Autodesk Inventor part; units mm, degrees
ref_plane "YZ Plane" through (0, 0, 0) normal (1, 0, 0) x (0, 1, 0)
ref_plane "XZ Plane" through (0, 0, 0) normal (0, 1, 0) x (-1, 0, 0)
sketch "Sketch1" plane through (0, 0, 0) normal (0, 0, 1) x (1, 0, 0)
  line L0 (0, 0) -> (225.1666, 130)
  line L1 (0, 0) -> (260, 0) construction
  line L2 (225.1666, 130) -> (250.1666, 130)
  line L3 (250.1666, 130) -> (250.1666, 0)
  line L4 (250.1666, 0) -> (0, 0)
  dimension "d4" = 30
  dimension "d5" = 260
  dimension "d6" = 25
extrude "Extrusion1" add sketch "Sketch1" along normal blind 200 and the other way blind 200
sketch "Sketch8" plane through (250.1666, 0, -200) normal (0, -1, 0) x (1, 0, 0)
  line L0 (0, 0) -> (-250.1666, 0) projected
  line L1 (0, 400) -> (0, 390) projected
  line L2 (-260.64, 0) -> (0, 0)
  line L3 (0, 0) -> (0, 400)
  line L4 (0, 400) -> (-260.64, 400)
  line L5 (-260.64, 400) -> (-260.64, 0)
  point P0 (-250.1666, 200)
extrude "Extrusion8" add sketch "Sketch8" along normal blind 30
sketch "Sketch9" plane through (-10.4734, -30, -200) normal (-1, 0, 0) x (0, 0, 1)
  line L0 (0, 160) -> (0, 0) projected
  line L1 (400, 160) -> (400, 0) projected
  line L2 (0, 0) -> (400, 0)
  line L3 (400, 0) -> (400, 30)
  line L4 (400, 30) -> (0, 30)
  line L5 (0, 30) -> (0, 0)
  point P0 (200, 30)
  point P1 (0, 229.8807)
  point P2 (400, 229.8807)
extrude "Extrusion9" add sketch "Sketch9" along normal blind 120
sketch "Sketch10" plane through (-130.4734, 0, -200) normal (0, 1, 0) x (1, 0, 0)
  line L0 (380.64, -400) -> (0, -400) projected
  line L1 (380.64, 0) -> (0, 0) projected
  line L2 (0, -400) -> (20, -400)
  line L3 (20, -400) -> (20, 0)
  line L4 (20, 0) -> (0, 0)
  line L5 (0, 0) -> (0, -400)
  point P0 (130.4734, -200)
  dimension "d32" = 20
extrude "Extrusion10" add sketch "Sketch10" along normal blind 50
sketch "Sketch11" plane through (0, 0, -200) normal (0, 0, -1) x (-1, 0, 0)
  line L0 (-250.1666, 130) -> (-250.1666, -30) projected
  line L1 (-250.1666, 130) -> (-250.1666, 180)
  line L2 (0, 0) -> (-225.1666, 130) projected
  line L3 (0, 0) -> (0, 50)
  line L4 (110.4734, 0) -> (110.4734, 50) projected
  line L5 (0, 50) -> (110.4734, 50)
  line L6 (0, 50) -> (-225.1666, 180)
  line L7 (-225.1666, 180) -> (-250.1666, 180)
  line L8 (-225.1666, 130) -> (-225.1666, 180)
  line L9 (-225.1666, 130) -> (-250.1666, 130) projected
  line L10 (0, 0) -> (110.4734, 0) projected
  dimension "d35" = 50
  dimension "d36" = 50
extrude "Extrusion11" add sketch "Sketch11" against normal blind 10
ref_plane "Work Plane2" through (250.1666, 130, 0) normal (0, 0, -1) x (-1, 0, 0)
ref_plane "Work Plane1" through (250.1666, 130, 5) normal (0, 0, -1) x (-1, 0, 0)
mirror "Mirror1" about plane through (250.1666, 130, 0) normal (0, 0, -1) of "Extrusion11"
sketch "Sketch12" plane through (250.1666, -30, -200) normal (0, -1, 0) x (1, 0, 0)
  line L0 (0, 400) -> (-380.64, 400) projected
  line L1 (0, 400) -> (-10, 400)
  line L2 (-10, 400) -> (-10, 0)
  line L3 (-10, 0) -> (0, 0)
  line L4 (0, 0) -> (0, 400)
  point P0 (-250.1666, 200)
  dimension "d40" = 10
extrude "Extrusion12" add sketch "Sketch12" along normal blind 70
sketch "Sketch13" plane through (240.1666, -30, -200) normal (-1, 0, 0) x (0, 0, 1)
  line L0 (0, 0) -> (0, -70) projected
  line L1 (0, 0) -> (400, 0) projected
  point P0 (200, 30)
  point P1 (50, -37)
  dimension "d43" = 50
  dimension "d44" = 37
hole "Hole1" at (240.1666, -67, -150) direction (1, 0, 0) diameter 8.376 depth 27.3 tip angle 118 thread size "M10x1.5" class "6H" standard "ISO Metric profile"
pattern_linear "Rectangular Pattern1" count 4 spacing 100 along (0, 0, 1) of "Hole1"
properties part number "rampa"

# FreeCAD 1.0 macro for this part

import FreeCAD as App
import Part
import Sketcher

V = App.Vector
Q = App.Units.Quantity

doc = App.newDocument("Part")
body = doc.addObject("PartDesign::Body", "Body")

sketch1 = body.newObject("Sketcher::SketchObject", "Sketch")
sketch1.AttachmentSupport = (doc.getObject("XY_Plane"), [""])
sketch1.MapMode = "FlatFace"
sketch1.addGeometry([
    Part.LineSegment(V(225.1666, 130, 0), V(0, 0, 0)),
    Part.LineSegment(V(0, 0, 0), V(250.1666, 0, 0)),
    Part.LineSegment(V(250.1666, 0, 0), V(250.1666, 130, 0)),
    Part.LineSegment(V(250.1666, 130, 0), V(225.1666, 130, 0)),
], False)
sketch1.addConstraint([
    Sketcher.Constraint("Coincident", 0, 2, 1, 1),
    Sketcher.Constraint("Coincident", 1, 2, 2, 1),
    Sketcher.Constraint("Coincident", 2, 2, 3, 1),
    Sketcher.Constraint("Coincident", 3, 2, 0, 1),
    Sketcher.Constraint("Horizontal", 1),
    Sketcher.Constraint("Vertical", 2),
    Sketcher.Constraint("Horizontal", 3),
    Sketcher.Constraint("Coincident", 0, 2, -1, 1),
    Sketcher.Constraint("DistanceX", 3, 2, 3, 1, Q("25 mm")),
    Sketcher.Constraint("Distance", 0, Q("260 mm")),
    Sketcher.Constraint("DistanceY", 2, 1, 2, 2, Q("130 mm")),
])
pad1 = body.newObject("PartDesign::Pad", "Pad")
pad1.Profile = sketch1
pad1.Type = "TwoLengths"
pad1.Length = 200
pad1.Length2 = 200

sketch2 = body.newObject("Sketcher::SketchObject", "Sketch001")
sketch2.AttachmentSupport = (doc.getObject("XZ_Plane"), [""])
sketch2.MapMode = "FlatFace"
sketch2.addGeometry([
    Part.LineSegment(V(-10.4734, -200, 0), V(250.1666, -200, 0)),
    Part.LineSegment(V(250.1666, -200, 0), V(250.1666, 200, 0)),
    Part.LineSegment(V(250.1666, 200, 0), V(-10.4734, 200, 0)),
    Part.LineSegment(V(-10.4734, 200, 0), V(-10.4734, -200, 0)),
], False)
sketch2.addConstraint([
    Sketcher.Constraint("Coincident", 0, 2, 1, 1),
    Sketcher.Constraint("Coincident", 1, 2, 2, 1),
    Sketcher.Constraint("Coincident", 2, 2, 3, 1),
    Sketcher.Constraint("Coincident", 3, 2, 0, 1),
    Sketcher.Constraint("Horizontal", 0),
    Sketcher.Constraint("Vertical", 1),
    Sketcher.Constraint("Horizontal", 2),
    Sketcher.Constraint("Vertical", 3),
    Sketcher.Constraint("DistanceY", 1, 1, 1, 2, Q("400 mm")),
    Sketcher.Constraint("DistanceY", 0, 2, -1, 1, Q("200 mm")),
    Sketcher.Constraint("DistanceX", 0, 1, 0, 2, Q("260.64 mm")),
    Sketcher.Constraint("DistanceX", -1, 1, 0, 2, Q("250.1666 mm")),
])
pad2 = body.newObject("PartDesign::Pad", "Pad001")
pad2.Profile = sketch2
pad2.Length = 30

sketch3 = body.newObject("Sketcher::SketchObject", "Sketch002")
sketch3.AttachmentSupport = (doc.getObject("YZ_Plane"), [""])
sketch3.MapMode = "FlatFace"
sketch3.AttachmentOffset = App.Placement(V(0, 0, -10.4734), App.Rotation())
sketch3.addGeometry([
    Part.LineSegment(V(0, 200, 0), V(0, -200, 0)),
    Part.LineSegment(V(0, -200, 0), V(-30, -200, 0)),
    Part.LineSegment(V(-30, -200, 0), V(-30, 200, 0)),
    Part.LineSegment(V(-30, 200, 0), V(0, 200, 0)),
], False)
sketch3.addConstraint([
    Sketcher.Constraint("Coincident", 0, 2, 1, 1),
    Sketcher.Constraint("Coincident", 1, 2, 2, 1),
    Sketcher.Constraint("Coincident", 2, 2, 3, 1),
    Sketcher.Constraint("Coincident", 3, 2, 0, 1),
    Sketcher.Constraint("Vertical", 0),
    Sketcher.Constraint("Horizontal", 1),
    Sketcher.Constraint("Vertical", 2),
    Sketcher.Constraint("Horizontal", 3),
    Sketcher.Constraint("Symmetric", 0, 2, 3, 2, -1, 1),
    Sketcher.Constraint("DistanceX", 1, 2, 1, 1, Q("30 mm")),
    Sketcher.Constraint("DistanceY", 0, 2, 0, 1, Q("400 mm")),
])
pad3 = body.newObject("PartDesign::Pad", "Pad002")
pad3.Profile = sketch3
pad3.Length = 120
pad3.Reversed = True

sketch4 = body.newObject("Sketcher::SketchObject", "Sketch003")
sketch4.AttachmentSupport = (doc.getObject("XZ_Plane"), [""])
sketch4.MapMode = "FlatFace"
sketch4.addGeometry([
    Part.LineSegment(V(-130.4734, 200, 0), V(-110.4734, 200, 0)),
    Part.LineSegment(V(-110.4734, 200, 0), V(-110.4734, -200, 0)),
    Part.LineSegment(V(-110.4734, -200, 0), V(-130.4734, -200, 0)),
    Part.LineSegment(V(-130.4734, -200, 0), V(-130.4734, 200, 0)),
], False)
sketch4.addConstraint([
    Sketcher.Constraint("Coincident", 0, 2, 1, 1),
    Sketcher.Constraint("Coincident", 1, 2, 2, 1),
    Sketcher.Constraint("Coincident", 2, 2, 3, 1),
    Sketcher.Constraint("Coincident", 3, 2, 0, 1),
    Sketcher.Constraint("Horizontal", 0),
    Sketcher.Constraint("Vertical", 1),
    Sketcher.Constraint("Horizontal", 2),
    Sketcher.Constraint("Vertical", 3),
    Sketcher.Constraint("DistanceX", 0, 1, 0, 2, Q("20 mm")),
    Sketcher.Constraint("DistanceY", 1, 2, 1, 1, Q("400 mm")),
    Sketcher.Constraint("DistanceY", -1, 1, 0, 2, Q("200 mm")),
    Sketcher.Constraint("DistanceX", 0, 2, -1, 1, Q("110.4734 mm")),
])
pad4 = body.newObject("PartDesign::Pad", "Pad003")
pad4.Profile = sketch4
pad4.Length = 50
pad4.Reversed = True

sketch5 = body.newObject("Sketcher::SketchObject", "Sketch004")
sketch5.AttachmentSupport = (doc.getObject("XY_Plane"), [""])
sketch5.MapMode = "FlatFace"
sketch5.AttachmentOffset = App.Placement(V(0, 0, -200), App.Rotation())
sketch5.addGeometry([
    Part.LineSegment(V(250.1666, 180, 0), V(250.1666, 130, 0)),
    Part.LineSegment(V(250.1666, 130, 0), V(225.1666, 130, 0)),
    Part.LineSegment(V(225.1666, 130, 0), V(0, 0, 0)),
    Part.LineSegment(V(0, 0, 0), V(-110.4734, 0, 0)),
    Part.LineSegment(V(-110.4734, 0, 0), V(-110.4734, 50, 0)),
    Part.LineSegment(V(-110.4734, 50, 0), V(0, 50, 0)),
    Part.LineSegment(V(0, 50, 0), V(225.1666, 180, 0)),
    Part.LineSegment(V(225.1666, 180, 0), V(250.1666, 180, 0)),
], False)
sketch5.addConstraint([
    Sketcher.Constraint("Coincident", 0, 2, 1, 1),
    Sketcher.Constraint("Coincident", 1, 2, 2, 1),
    Sketcher.Constraint("Coincident", 2, 2, 3, 1),
    Sketcher.Constraint("Coincident", 3, 2, 4, 1),
    Sketcher.Constraint("Coincident", 4, 2, 5, 1),
    Sketcher.Constraint("Coincident", 5, 2, 6, 1),
    Sketcher.Constraint("Coincident", 6, 2, 7, 1),
    Sketcher.Constraint("Coincident", 7, 2, 0, 1),
    Sketcher.Constraint("Vertical", 0),
    Sketcher.Constraint("Horizontal", 1),
    Sketcher.Constraint("Horizontal", 3),
    Sketcher.Constraint("Vertical", 4),
    Sketcher.Constraint("Horizontal", 5),
    Sketcher.Constraint("Horizontal", 7),
    Sketcher.Constraint("Coincident", 2, 2, -1, 1),
    Sketcher.Constraint("PointOnObject", 5, 2, -2),
    Sketcher.Constraint("Parallel", 2, 6),
    Sketcher.Constraint("Vertical", 1, 2, 6, 2),
    Sketcher.Constraint("DistanceY", 0, 2, 0, 1, Q("50 mm")),
    Sketcher.Constraint("DistanceX", 1, 2, 1, 1, Q("25 mm")),
    Sketcher.Constraint("Angle", 2, Q("-150 deg")),
    Sketcher.Constraint("Distance", 2, Q("260 mm")),
    Sketcher.Constraint("DistanceX", 3, 2, 1, 2, Q("335.64 mm")),
])
pad5 = body.newObject("PartDesign::Pad", "Pad004")
pad5.Profile = sketch5
pad5.Length = 10
doc.recompute()

mirrored = body.newObject("PartDesign::Mirrored", "Mirrored")
mirrored.Originals = [pad5]
mirrored.MirrorPlane = (doc.getObject("XY_Plane"), [""])
body.Tip = mirrored

sketch6 = body.newObject("Sketcher::SketchObject", "Sketch005")
sketch6.AttachmentSupport = (doc.getObject("XZ_Plane"), [""])
sketch6.MapMode = "FlatFace"
sketch6.AttachmentOffset = App.Placement(V(0, 0, 30), App.Rotation())
sketch6.addGeometry([
    Part.LineSegment(V(250.1666, -200, 0), V(250.1666, 200, 0)),
    Part.LineSegment(V(250.1666, 200, 0), V(240.1666, 200, 0)),
    Part.LineSegment(V(240.1666, 200, 0), V(240.1666, -200, 0)),
    Part.LineSegment(V(240.1666, -200, 0), V(250.1666, -200, 0)),
], False)
sketch6.addConstraint([
    Sketcher.Constraint("Coincident", 0, 2, 1, 1),
    Sketcher.Constraint("Coincident", 1, 2, 2, 1),
    Sketcher.Constraint("Coincident", 2, 2, 3, 1),
    Sketcher.Constraint("Coincident", 3, 2, 0, 1),
    Sketcher.Constraint("Vertical", 0),
    Sketcher.Constraint("Horizontal", 1),
    Sketcher.Constraint("Vertical", 2),
    Sketcher.Constraint("Horizontal", 3),
    Sketcher.Constraint("DistanceX", 1, 2, 1, 1, Q("10 mm")),
    Sketcher.Constraint("DistanceY", 0, 1, 0, 2, Q("400 mm")),
    Sketcher.Constraint("DistanceY", -1, 1, 0, 2, Q("200 mm")),
    Sketcher.Constraint("DistanceX", -1, 1, 0, 2, Q("250.1666 mm")),
])
pad6 = body.newObject("PartDesign::Pad", "Pad005")
pad6.Profile = sketch6
pad6.Length = 70

sketch7 = body.newObject("Sketcher::SketchObject", "Sketch006")
sketch7.AttachmentSupport = (doc.getObject("YZ_Plane"), [""])
sketch7.MapMode = "FlatFace"
sketch7.AttachmentOffset = App.Placement(V(0, 0, 240.1666), App.Rotation())
sketch7.addGeometry(Part.Circle(V(-67, -150, 0), V(0, 0, 1), 4.188), False)
sketch7.addConstraint([
    Sketcher.Constraint("Diameter", 0, Q("8.376 mm")),
    Sketcher.Constraint("DistanceX", 0, 3, -1, 1, Q("67 mm")),
    Sketcher.Constraint("DistanceY", 0, 3, -1, 1, Q("150 mm")),
])
doc.recompute()
hole = body.newObject("PartDesign::Hole", "Hole")
hole.Profile = sketch7
hole.ThreadType = "None"
hole.Diameter = 8.376
hole.DepthType = "Dimension"
hole.Depth = 27.3
hole.DrillPoint = "Angled"
hole.DrillPointAngle = 118
hole.Reversed = True
doc.recompute()

linearpattern = body.newObject("PartDesign::LinearPattern", "LinearPattern")
linearpattern.Originals = [hole]
linearpattern.Direction = (doc.getObject("Z_Axis"), [""])
linearpattern.Mode = "offset"
linearpattern.Offset = 100
linearpattern.Occurrences = 4
body.Tip = linearpattern

doc.recompute()
